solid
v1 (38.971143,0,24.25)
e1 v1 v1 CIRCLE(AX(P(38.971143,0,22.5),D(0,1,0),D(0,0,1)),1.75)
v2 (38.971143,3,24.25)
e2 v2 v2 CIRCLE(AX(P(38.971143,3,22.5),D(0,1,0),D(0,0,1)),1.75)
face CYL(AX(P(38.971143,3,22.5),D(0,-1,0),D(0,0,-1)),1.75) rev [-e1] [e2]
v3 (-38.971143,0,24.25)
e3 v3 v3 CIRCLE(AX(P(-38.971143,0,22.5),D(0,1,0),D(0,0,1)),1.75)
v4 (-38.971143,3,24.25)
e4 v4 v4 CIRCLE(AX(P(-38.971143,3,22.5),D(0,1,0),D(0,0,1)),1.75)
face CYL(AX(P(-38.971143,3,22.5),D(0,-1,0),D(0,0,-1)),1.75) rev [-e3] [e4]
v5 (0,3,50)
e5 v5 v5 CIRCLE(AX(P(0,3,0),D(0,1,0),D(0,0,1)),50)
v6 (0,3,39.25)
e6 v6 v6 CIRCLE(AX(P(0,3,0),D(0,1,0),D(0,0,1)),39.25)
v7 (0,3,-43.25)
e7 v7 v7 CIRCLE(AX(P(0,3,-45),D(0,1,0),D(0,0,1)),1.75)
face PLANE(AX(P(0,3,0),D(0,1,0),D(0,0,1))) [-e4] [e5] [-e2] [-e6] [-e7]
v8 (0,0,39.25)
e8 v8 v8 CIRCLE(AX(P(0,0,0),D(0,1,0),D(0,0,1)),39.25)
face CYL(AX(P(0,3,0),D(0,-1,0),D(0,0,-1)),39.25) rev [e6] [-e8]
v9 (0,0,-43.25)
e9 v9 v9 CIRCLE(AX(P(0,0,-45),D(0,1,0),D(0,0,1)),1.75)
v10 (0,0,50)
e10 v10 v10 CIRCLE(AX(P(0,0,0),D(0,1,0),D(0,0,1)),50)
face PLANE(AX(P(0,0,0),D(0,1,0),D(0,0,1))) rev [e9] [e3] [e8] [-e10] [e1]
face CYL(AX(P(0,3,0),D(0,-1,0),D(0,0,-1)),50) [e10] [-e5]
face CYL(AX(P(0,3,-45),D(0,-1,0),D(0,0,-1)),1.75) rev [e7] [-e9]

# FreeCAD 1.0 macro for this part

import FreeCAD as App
import Part
import Sketcher

V = App.Vector

doc = App.newDocument("Part")
body = doc.addObject("PartDesign::Body", "Body")

# Sketch on XZ plane
sketch1 = body.newObject("Sketcher::SketchObject", "Sketch")
sketch1.AttachmentSupport = (doc.getObject("XZ_Plane"), [""])
sketch1.MapMode = "FlatFace"
sketch1.addGeometry([
    Part.Circle(V(0, 0, 0), V(0, 0, 1), 50),  # 0
    Part.Circle(V(0, -45, 0), V(0, 0, 1), 1.8),  # 1
    Part.Circle(V(-39, 22.5, 0), V(0, 0, 1), 1.8),  # 2
    Part.Circle(V(0, 0, 0), V(0, 0, 1), 39.2),  # 3
    Part.Circle(V(39, 22.5, 0), V(0, 0, 1), 1.8),  # 4
], False)
sketch1.addConstraint([
    Sketcher.Constraint("Coincident", 0, 3, -1, 1),
    Sketcher.Constraint("Coincident", 3, 3, -1, 1),
    Sketcher.Constraint("Equal", 1, 2),
    Sketcher.Constraint("Equal", 2, 4),
    Sketcher.Constraint("Symmetric", 2, 3, 4, 3, -2),
    Sketcher.Constraint("PointOnObject", 1, 3, -2),
    Sketcher.Constraint("Diameter", 0, 100.0),
    Sketcher.Constraint("Diameter", 1, 3.5),
    Sketcher.Constraint("Diameter", 3, 78.5),
    Sketcher.Constraint("DistanceY", 1, 3, -1, 1, 45.0),
    Sketcher.Constraint("DistanceY", -1, 1, 2, 3, 22.5),
    Sketcher.Constraint("DistanceX", 2, 3, -1, 1, 38.971143),
])
pad1 = body.newObject("PartDesign::Pad", "Pad")
pad1.Profile = sketch1
pad1.Length = 3
pad1.Reversed = True

doc.recompute()
